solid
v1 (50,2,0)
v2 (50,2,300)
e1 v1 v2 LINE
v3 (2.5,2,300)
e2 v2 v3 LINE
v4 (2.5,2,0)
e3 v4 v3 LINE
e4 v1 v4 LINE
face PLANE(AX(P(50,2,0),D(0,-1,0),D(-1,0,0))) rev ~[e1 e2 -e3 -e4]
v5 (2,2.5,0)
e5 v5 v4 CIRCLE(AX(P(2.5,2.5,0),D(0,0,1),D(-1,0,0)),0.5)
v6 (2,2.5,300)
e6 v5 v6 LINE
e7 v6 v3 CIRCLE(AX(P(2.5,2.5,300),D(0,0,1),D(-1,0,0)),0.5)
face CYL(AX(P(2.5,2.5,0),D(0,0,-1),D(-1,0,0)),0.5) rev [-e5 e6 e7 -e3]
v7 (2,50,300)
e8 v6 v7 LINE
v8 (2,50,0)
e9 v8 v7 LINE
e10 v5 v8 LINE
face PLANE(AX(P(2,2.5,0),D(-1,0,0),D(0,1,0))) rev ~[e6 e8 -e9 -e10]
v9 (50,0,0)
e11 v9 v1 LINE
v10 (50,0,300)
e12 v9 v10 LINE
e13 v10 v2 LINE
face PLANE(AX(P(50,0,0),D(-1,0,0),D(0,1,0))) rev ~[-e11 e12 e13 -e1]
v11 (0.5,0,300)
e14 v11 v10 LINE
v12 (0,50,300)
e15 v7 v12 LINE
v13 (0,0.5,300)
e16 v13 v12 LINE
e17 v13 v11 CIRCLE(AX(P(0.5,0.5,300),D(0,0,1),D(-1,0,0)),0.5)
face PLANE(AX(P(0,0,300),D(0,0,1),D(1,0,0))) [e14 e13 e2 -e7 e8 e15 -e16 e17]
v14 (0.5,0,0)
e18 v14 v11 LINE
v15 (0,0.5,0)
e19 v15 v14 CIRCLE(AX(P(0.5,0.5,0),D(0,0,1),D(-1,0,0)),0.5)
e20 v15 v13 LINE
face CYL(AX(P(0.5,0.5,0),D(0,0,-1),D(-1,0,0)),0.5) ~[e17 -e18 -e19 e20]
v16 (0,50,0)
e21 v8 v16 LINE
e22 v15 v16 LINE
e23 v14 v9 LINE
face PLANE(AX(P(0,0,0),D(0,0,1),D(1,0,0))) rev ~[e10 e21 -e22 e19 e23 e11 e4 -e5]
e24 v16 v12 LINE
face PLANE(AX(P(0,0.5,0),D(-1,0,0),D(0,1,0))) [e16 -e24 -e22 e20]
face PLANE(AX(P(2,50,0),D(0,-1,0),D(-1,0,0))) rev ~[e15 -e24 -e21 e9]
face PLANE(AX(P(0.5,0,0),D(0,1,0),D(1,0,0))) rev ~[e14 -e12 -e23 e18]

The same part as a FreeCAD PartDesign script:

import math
import FreeCAD as App
import Part
import Sketcher

V = App.Vector

doc = App.newDocument("Part")
body = doc.addObject("PartDesign::Body", "Body")

# Sketch on XY plane
sketch1 = doc.addObject("Sketcher::SketchObject", "Sketch")
body.addObject(sketch1)
sketch1.AttachmentSupport = (doc.XY_Plane, [""])
sketch1.MapMode = "FlatFace"
sketch1.addGeometry([
    Part.ArcOfCircle(Part.Circle(V(0.5, 0.5, 0), V(0, 0, 1), 0.5), math.radians(180), math.radians(270)),  # 0
    Part.LineSegment(V(0.5, 0, 0), V(50, 0, 0)),  # 1
    Part.LineSegment(V(50, 0, 0), V(50, 2, 0)),  # 2
    Part.LineSegment(V(50, 2, 0), V(2.5, 2, 0)),  # 3
    Part.ArcOfCircle(Part.Circle(V(2.5, 2.5, 0), V(0, 0, 1), 0.5), math.radians(180), math.radians(270)),  # 4
    Part.LineSegment(V(2, 2.5, 0), V(2, 50, 0)),  # 5
    Part.LineSegment(V(2, 50, 0), V(0, 50, 0)),  # 6
    Part.LineSegment(V(0, 50, 0), V(0, 0.5, 0)),  # 7
], False)
sketch1.addConstraint([
    Sketcher.Constraint("Tangent", 0, 2, 1, 1),
    Sketcher.Constraint("Coincident", 1, 2, 2, 1),
    Sketcher.Constraint("Coincident", 2, 2, 3, 1),
    Sketcher.Constraint("Tangent", 3, 2, 4, 2),
    Sketcher.Constraint("Tangent", 4, 1, 5, 1),
    Sketcher.Constraint("Coincident", 5, 2, 6, 1),
    Sketcher.Constraint("Coincident", 6, 2, 7, 1),
    Sketcher.Constraint("Tangent", 7, 2, 0, 1),
    Sketcher.Constraint("Horizontal", 1),
    Sketcher.Constraint("Vertical", 2),
    Sketcher.Constraint("Horizontal", 3),
    Sketcher.Constraint("Vertical", 5),
    Sketcher.Constraint("Horizontal", 6),
    Sketcher.Constraint("Vertical", 7),
    Sketcher.Constraint("Equal", 0, 4),
    Sketcher.Constraint("PointOnObject", 0, 2, -1),
    Sketcher.Constraint("PointOnObject", 6, 2, -2),
    Sketcher.Constraint("Equal", 6, 2),
    Sketcher.Constraint("Equal", 3, 5),
    Sketcher.Constraint("Radius", 0, 0.5),
    Sketcher.Constraint("DistanceX", 6, 2, 6, 1, 2.0),
    Sketcher.Constraint("DistanceX", -1, 1, 1, 2, 50.0),
])
pad1 = doc.addObject("PartDesign::Pad", "Pad")
body.addObject(pad1)
pad1.Profile = sketch1
pad1.Length = 300

doc.recompute()
